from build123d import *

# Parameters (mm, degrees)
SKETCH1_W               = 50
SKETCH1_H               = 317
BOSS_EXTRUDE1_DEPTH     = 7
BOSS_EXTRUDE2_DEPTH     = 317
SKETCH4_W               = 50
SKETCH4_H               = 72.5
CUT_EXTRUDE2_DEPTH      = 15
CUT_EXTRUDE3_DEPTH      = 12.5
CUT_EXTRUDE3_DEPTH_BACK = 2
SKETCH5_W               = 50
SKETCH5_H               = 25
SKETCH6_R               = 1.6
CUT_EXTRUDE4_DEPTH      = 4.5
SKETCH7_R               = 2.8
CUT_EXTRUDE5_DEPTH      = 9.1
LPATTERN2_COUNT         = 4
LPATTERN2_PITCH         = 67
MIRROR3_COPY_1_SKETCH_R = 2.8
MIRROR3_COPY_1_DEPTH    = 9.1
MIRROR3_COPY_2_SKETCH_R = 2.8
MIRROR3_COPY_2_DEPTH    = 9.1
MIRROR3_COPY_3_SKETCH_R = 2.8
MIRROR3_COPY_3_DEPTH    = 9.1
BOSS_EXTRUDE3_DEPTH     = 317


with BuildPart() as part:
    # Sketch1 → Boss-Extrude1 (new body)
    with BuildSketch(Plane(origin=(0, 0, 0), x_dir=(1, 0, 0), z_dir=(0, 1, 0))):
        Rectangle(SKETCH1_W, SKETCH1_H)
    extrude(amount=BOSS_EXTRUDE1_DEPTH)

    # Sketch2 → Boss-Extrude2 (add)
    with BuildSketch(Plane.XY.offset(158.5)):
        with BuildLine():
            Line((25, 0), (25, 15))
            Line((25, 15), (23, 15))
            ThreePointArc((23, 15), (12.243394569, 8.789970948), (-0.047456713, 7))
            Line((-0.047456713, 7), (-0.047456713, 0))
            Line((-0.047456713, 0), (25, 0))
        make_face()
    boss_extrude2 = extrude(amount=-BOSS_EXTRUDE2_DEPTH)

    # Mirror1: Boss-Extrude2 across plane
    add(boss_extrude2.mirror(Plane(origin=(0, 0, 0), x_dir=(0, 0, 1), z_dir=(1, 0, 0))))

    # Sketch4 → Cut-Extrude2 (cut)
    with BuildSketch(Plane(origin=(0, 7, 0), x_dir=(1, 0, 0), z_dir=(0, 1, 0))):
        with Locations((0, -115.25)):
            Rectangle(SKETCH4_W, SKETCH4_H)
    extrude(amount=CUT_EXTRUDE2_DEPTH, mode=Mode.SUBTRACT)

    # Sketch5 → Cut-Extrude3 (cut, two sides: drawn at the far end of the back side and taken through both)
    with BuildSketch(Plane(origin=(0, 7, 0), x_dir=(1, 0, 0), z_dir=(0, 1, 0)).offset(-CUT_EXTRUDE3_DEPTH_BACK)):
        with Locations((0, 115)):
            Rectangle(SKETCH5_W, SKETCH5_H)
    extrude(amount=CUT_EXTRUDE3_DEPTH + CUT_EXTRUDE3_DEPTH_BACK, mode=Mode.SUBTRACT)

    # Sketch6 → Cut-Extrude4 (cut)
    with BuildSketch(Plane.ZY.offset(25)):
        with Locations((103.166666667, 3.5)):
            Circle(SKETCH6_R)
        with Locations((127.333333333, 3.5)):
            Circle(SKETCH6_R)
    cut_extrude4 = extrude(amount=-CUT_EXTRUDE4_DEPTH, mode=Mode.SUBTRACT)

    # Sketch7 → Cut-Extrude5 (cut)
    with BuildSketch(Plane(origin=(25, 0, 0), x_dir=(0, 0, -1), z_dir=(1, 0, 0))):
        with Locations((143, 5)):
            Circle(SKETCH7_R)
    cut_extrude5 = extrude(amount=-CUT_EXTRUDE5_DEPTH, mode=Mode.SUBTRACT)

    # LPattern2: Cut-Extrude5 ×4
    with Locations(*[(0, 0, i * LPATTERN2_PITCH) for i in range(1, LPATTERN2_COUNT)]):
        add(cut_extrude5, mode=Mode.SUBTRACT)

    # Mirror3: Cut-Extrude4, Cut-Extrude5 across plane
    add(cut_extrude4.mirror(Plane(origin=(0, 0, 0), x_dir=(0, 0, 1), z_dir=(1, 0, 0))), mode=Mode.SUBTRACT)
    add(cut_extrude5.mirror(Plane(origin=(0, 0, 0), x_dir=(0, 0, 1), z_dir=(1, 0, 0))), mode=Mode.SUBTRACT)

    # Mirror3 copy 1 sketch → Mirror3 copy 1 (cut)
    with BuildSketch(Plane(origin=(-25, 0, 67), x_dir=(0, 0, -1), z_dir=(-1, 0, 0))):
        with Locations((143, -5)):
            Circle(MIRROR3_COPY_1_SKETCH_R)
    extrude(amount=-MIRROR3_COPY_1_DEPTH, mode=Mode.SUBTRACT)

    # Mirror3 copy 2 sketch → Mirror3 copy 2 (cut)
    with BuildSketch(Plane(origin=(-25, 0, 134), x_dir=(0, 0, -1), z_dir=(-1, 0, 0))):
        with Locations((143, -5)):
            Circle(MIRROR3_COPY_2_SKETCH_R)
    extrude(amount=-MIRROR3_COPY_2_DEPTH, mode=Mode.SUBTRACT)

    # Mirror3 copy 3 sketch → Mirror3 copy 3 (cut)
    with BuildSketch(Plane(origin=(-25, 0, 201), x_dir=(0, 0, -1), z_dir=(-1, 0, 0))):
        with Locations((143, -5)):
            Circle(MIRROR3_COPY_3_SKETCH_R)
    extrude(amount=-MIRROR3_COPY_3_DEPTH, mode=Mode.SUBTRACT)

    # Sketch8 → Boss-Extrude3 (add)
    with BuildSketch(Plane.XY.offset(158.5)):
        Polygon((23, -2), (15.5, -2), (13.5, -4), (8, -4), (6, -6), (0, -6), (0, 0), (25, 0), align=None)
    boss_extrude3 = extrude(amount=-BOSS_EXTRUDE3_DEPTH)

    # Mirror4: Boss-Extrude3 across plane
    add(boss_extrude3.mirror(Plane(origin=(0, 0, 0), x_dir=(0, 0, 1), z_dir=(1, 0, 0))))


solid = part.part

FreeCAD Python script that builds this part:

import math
import FreeCAD as App
import Part
import Sketcher
from FreeCAD import Vector
Q = App.Units.Quantity

doc = App.newDocument("Part")
params = doc.addObject("Spreadsheet::Sheet", "Params")
for row, (alias, value) in enumerate([
    ("sketch1_width", "50 mm"),
    ("sketch1_height", "317 mm"),
    ("pad1_length", "7 mm"),
    ("sketch2_width", "2 mm"),
    ("sketch2_height", "15 mm"),
    ("sketch2_height2", "7 mm"),
    ("pad2_length", "317 mm"),
    ("sketch3_width", "50 mm"),
    ("sketch3_height", "72.5 mm"),
    ("pocket1_length", "15 mm"),
    ("sketch4_width", "50 mm"),
    ("sketch4_height", "25 mm"),
    ("pocket2_length", "12.5 mm"),
    ("pocket2_length2", "2 mm"),
    ("sketch5_diameter", "3.2 mm"),
    ("pocket3_length", "4.5 mm"),
    ("sketch6_diameter", "5.6 mm"),
    ("pocket4_length", "9.1 mm"),
    ("linearpattern_pitch", "67 mm"),
    ("sketch7_diameter", "5.6 mm"),
    ("pocket5_length", "9.1 mm"),
    ("sketch8_diameter", "5.6 mm"),
    ("pocket6_length", "9.1 mm"),
    ("sketch9_diameter", "5.6 mm"),
    ("pocket7_length", "9.1 mm"),
    ("sketch10_width", "25 mm"),
    ("sketch10_width2", "6 mm"),
    ("sketch10_width3", "7.5 mm"),
    ("pad3_length", "317 mm"),
], start=1):
    params.set(f"A{row}", alias)
    params.set(f"B{row}", "=" + value)
    params.setAlias(f"B{row}", alias)

body = doc.addObject("PartDesign::Body", "Body")

sketch1 = doc.addObject("Sketcher::SketchObject", "Sketch")
body.addObject(sketch1)
sketch1.AttachmentSupport = (doc.XZ_Plane, [""])
sketch1.MapMode = "FlatFace"
sketch1.addGeometry([
    Part.LineSegment(Vector(-25, -158, 0), Vector(-25, 158, 0)),
    Part.LineSegment(Vector(-25, 158, 0), Vector(25, 158, 0)),
    Part.LineSegment(Vector(25, 158, 0), Vector(25, -158, 0)),
    Part.LineSegment(Vector(25, -158, 0), Vector(-25, -158, 0)),
], False)
sketch1.addConstraint([
    Sketcher.Constraint("Coincident", 0, 2, 1, 1),
    Sketcher.Constraint("Coincident", 1, 2, 2, 1),
    Sketcher.Constraint("Coincident", 2, 2, 3, 1),
    Sketcher.Constraint("Coincident", 3, 2, 0, 1),
    Sketcher.Constraint("Vertical", 0),
    Sketcher.Constraint("Horizontal", 1),
    Sketcher.Constraint("Vertical", 2),
    Sketcher.Constraint("Horizontal", 3),
    Sketcher.Constraint("Symmetric", 0, 2, 2, 2, -1, 1),
    Sketcher.Constraint("DistanceX", 1, 1, 1, 2, Q("50 mm")),
    Sketcher.Constraint("DistanceY", 0, 1, 0, 2, Q("317 mm")),
])
sketch1.setExpression("Constraints[9]", "Params.sketch1_width")
sketch1.setExpression("Constraints[10]", "Params.sketch1_height")
pad1 = doc.addObject("PartDesign::Pad", "Pad")
body.addObject(pad1)
pad1.Profile = sketch1
pad1.setExpression("Length", "Params.pad1_length")
pad1.Reversed = True

sketch2 = doc.addObject("Sketcher::SketchObject", "Sketch001")
body.addObject(sketch2)
sketch2.AttachmentSupport = (doc.XY_Plane, [""])
sketch2.MapMode = "FlatFace"
sketch2.AttachmentOffset = App.Placement(Vector(0, 0, 158.5), App.Rotation())
sketch2.addGeometry([
    Part.LineSegment(Vector(25, 0, 0), Vector(25, 15, 0)),
    Part.LineSegment(Vector(25, 15, 0), Vector(23, 15, 0)),
    Part.ArcOfCircle(Part.Circle(Vector(1.4, 39.9, 0), Vector(0, 0, 1), 33), math.radians(-93), math.radians(-49)),
    Part.LineSegment(Vector(0, 7, 0), Vector(0, 0, 0)),
    Part.LineSegment(Vector(0, 0, 0), Vector(25, 0, 0)),
], False)
sketch2.addConstraint([
    Sketcher.Constraint("Coincident", 0, 2, 1, 1),
    Sketcher.Constraint("Coincident", 1, 2, 2, 2),
    Sketcher.Constraint("Coincident", 2, 1, 3, 1),
    Sketcher.Constraint("Coincident", 3, 2, 4, 1),
    Sketcher.Constraint("Coincident", 4, 2, 0, 1),
    Sketcher.Constraint("Vertical", 0),
    Sketcher.Constraint("Horizontal", 1),
    Sketcher.Constraint("Vertical", 3),
    Sketcher.Constraint("Horizontal", 4),
    Sketcher.Constraint("PointOnObject", 3, 2, -1),
    Sketcher.Constraint("DistanceX", 1, 2, 1, 1, Q("2 mm")),
    Sketcher.Constraint("DistanceY", 0, 1, 0, 2, Q("15 mm")),
    Sketcher.Constraint("DistanceY", 3, 2, 3, 1, Q("7 mm")),
    Sketcher.Constraint("DistanceX", -1, 1, 0, 2, Q("25 mm")),
    Sketcher.Constraint("Radius", 2, Q("32.972181 mm")),
    Sketcher.Constraint("DistanceX", 4, 1, 4, 2, Q("25.047457 mm")),
])
sketch2.setExpression("Constraints[10]", "Params.sketch2_width")
sketch2.setExpression("Constraints[11]", "Params.sketch2_height")
sketch2.setExpression("Constraints[12]", "Params.sketch2_height2")
pad2 = doc.addObject("PartDesign::Pad", "Pad001")
body.addObject(pad2)
pad2.Profile = sketch2
pad2.setExpression("Length", "Params.pad2_length")
pad2.Reversed = True
doc.recompute()

mirrored = doc.addObject("PartDesign::Mirrored", "Mirrored")
body.addObject(mirrored)
mirrored.Originals = [pad2]
mirrored.MirrorPlane = (doc.YZ_Plane, [""])
body.Tip = mirrored

sketch3 = doc.addObject("Sketcher::SketchObject", "Sketch002")
body.addObject(sketch3)
sketch3.AttachmentSupport = (doc.XZ_Plane, [""])
sketch3.MapMode = "FlatFace"
sketch3.AttachmentOffset = App.Placement(Vector(0, 0, -7), App.Rotation())
sketch3.addGeometry([
    Part.LineSegment(Vector(-25, 79, 0), Vector(-25, 152, 0)),
    Part.LineSegment(Vector(-25, 152, 0), Vector(25, 152, 0)),
    Part.LineSegment(Vector(25, 152, 0), Vector(25, 79, 0)),
    Part.LineSegment(Vector(25, 79, 0), Vector(-25, 79, 0)),
], False)
sketch3.addConstraint([
    Sketcher.Constraint("Coincident", 0, 2, 1, 1),
    Sketcher.Constraint("Coincident", 1, 2, 2, 1),
    Sketcher.Constraint("Coincident", 2, 2, 3, 1),
    Sketcher.Constraint("Coincident", 3, 2, 0, 1),
    Sketcher.Constraint("Vertical", 0),
    Sketcher.Constraint("Horizontal", 1),
    Sketcher.Constraint("Vertical", 2),
    Sketcher.Constraint("Horizontal", 3),
    Sketcher.Constraint("DistanceX", 1, 1, 1, 2, Q("50 mm")),
    Sketcher.Constraint("DistanceY", 0, 1, 0, 2, Q("72.5 mm")),
    Sketcher.Constraint("DistanceX", 0, 2, -1, 1, Q("25 mm")),
    Sketcher.Constraint("DistanceY", -1, 1, 2, 2, Q("79 mm")),
])
sketch3.setExpression("Constraints[8]", "Params.sketch3_width")
sketch3.setExpression("Constraints[9]", "Params.sketch3_height")
pocket1 = doc.addObject("PartDesign::Pocket", "Pocket")
body.addObject(pocket1)
pocket1.Profile = sketch3
pocket1.setExpression("Length", "Params.pocket1_length")

sketch4 = doc.addObject("Sketcher::SketchObject", "Sketch003")
body.addObject(sketch4)
sketch4.AttachmentSupport = (doc.XZ_Plane, [""])
sketch4.MapMode = "FlatFace"
sketch4.AttachmentOffset = App.Placement(Vector(0, 0, -7), App.Rotation())
sketch4.addGeometry([
    Part.LineSegment(Vector(-25, -128, 0), Vector(-25, -102, 0)),
    Part.LineSegment(Vector(-25, -102, 0), Vector(25, -102, 0)),
    Part.LineSegment(Vector(25, -102, 0), Vector(25, -128, 0)),
    Part.LineSegment(Vector(25, -128, 0), Vector(-25, -128, 0)),
], False)
sketch4.addConstraint([
    Sketcher.Constraint("Coincident", 0, 2, 1, 1),
    Sketcher.Constraint("Coincident", 1, 2, 2, 1),
    Sketcher.Constraint("Coincident", 2, 2, 3, 1),
    Sketcher.Constraint("Coincident", 3, 2, 0, 1),
    Sketcher.Constraint("Vertical", 0),
    Sketcher.Constraint("Horizontal", 1),
    Sketcher.Constraint("Vertical", 2),
    Sketcher.Constraint("Horizontal", 3),
    Sketcher.Constraint("DistanceX", 1, 1, 1, 2, Q("50 mm")),
    Sketcher.Constraint("DistanceY", 0, 1, 0, 2, Q("25 mm")),
    Sketcher.Constraint("DistanceX", 0, 2, -1, 1, Q("25 mm")),
    Sketcher.Constraint("DistanceY", 0, 2, -1, 1, Q("102.5 mm")),
])
sketch4.setExpression("Constraints[8]", "Params.sketch4_width")
sketch4.setExpression("Constraints[9]", "Params.sketch4_height")
pocket2 = doc.addObject("PartDesign::Pocket", "Pocket001")
body.addObject(pocket2)
pocket2.Profile = sketch4
pocket2.Type = "TwoLengths"
pocket2.setExpression("Length", "Params.pocket2_length")
pocket2.setExpression("Length2", "Params.pocket2_length2")

sketch5 = doc.addObject("Sketcher::SketchObject", "Sketch004")
body.addObject(sketch5)
sketch5.AttachmentSupport = (doc.YZ_Plane, [""])
sketch5.MapMode = "FlatFace"
sketch5.AttachmentOffset = App.Placement(Vector(0, 0, -25), App.Rotation())
sketch5.addGeometry([
    Part.Circle(Vector(3.5, 103.2, 0), Vector(0, 0, 1), 1.6),
    Part.Circle(Vector(3.5, 127.3, 0), Vector(0, 0, 1), 1.6),
], False)
sketch5.addConstraint([
    Sketcher.Constraint("Equal", 0, 1),
    Sketcher.Constraint("Vertical", 0, 3, 1, 3),
    Sketcher.Constraint("Diameter", 0, Q("3.2 mm")),
    Sketcher.Constraint("DistanceX", -1, 1, 0, 3, Q("3.5 mm")),
    Sketcher.Constraint("DistanceY", -1, 1, 0, 3, Q("103.166667 mm")),
    Sketcher.Constraint("DistanceY", -1, 1, 1, 3, Q("127.333333 mm")),
])
sketch5.setExpression("Constraints[2]", "Params.sketch5_diameter")
pocket3 = doc.addObject("PartDesign::Pocket", "Pocket002")
body.addObject(pocket3)
pocket3.Profile = sketch5
pocket3.setExpression("Length", "Params.pocket3_length")
pocket3.Reversed = True

sketch6 = doc.addObject("Sketcher::SketchObject", "Sketch005")
body.addObject(sketch6)
sketch6.AttachmentSupport = (doc.YZ_Plane, [""])
sketch6.MapMode = "FlatFace"
sketch6.AttachmentOffset = App.Placement(Vector(0, 0, 25), App.Rotation())
sketch6.addGeometry(Part.Circle(Vector(5, -143, 0), Vector(0, 0, 1), 2.8), False)
sketch6.addConstraint([
    Sketcher.Constraint("Diameter", 0, Q("5.6 mm")),
    Sketcher.Constraint("DistanceX", -1, 1, 0, 3, Q("5 mm")),
    Sketcher.Constraint("DistanceY", 0, 3, -1, 1, Q("143 mm")),
])
sketch6.setExpression("Constraints[0]", "Params.sketch6_diameter")
pocket4 = doc.addObject("PartDesign::Pocket", "Pocket003")
body.addObject(pocket4)
pocket4.Profile = sketch6
pocket4.setExpression("Length", "Params.pocket4_length")
doc.recompute()

linearpattern = doc.addObject("PartDesign::LinearPattern", "LinearPattern")
body.addObject(linearpattern)
linearpattern.Originals = [pocket4]
linearpattern.Direction = (doc.Z_Axis, [""])
linearpattern.Mode = "offset"
linearpattern.setExpression("Offset", "Params.linearpattern_pitch")
linearpattern.Occurrences = 4
body.Tip = linearpattern
doc.recompute()

mirrored2 = doc.addObject("PartDesign::Mirrored", "Mirrored001")
body.addObject(mirrored2)
mirrored2.Originals = [pocket3, pocket4]
mirrored2.MirrorPlane = (doc.YZ_Plane, [""])
body.Tip = mirrored2

sketch7 = doc.addObject("Sketcher::SketchObject", "Sketch006")
body.addObject(sketch7)
sketch7.AttachmentSupport = (doc.YZ_Plane, [""])
sketch7.MapMode = "FlatFace"
sketch7.AttachmentOffset = App.Placement(Vector(0, 0, -25), App.Rotation())
sketch7.addGeometry(Part.Circle(Vector(5, -76, 0), Vector(0, 0, 1), 2.8), False)
sketch7.addConstraint([
    Sketcher.Constraint("Diameter", 0, Q("5.6 mm")),
    Sketcher.Constraint("DistanceX", -1, 1, 0, 3, Q("5 mm")),
    Sketcher.Constraint("DistanceY", 0, 3, -1, 1, Q("76 mm")),
])
sketch7.setExpression("Constraints[0]", "Params.sketch7_diameter")
pocket5 = doc.addObject("PartDesign::Pocket", "Pocket004")
body.addObject(pocket5)
pocket5.Profile = sketch7
pocket5.setExpression("Length", "Params.pocket5_length")
pocket5.Reversed = True

sketch8 = doc.addObject("Sketcher::SketchObject", "Sketch007")
body.addObject(sketch8)
sketch8.AttachmentSupport = (doc.YZ_Plane, [""])
sketch8.MapMode = "FlatFace"
sketch8.AttachmentOffset = App.Placement(Vector(0, 0, -25), App.Rotation())
sketch8.addGeometry(Part.Circle(Vector(5, -9, 0), Vector(0, 0, 1), 2.8), False)
sketch8.addConstraint([
    Sketcher.Constraint("Diameter", 0, Q("5.6 mm")),
    Sketcher.Constraint("DistanceX", -1, 1, 0, 3, Q("5 mm")),
    Sketcher.Constraint("DistanceY", 0, 3, -1, 1, Q("9 mm")),
])
sketch8.setExpression("Constraints[0]", "Params.sketch8_diameter")
pocket6 = doc.addObject("PartDesign::Pocket", "Pocket005")
body.addObject(pocket6)
pocket6.Profile = sketch8
pocket6.setExpression("Length", "Params.pocket6_length")
pocket6.Reversed = True

sketch9 = doc.addObject("Sketcher::SketchObject", "Sketch008")
body.addObject(sketch9)
sketch9.AttachmentSupport = (doc.YZ_Plane, [""])
sketch9.MapMode = "FlatFace"
sketch9.AttachmentOffset = App.Placement(Vector(0, 0, -25), App.Rotation())
sketch9.addGeometry(Part.Circle(Vector(5, 58, 0), Vector(0, 0, 1), 2.8), False)
sketch9.addConstraint([
    Sketcher.Constraint("Diameter", 0, Q("5.6 mm")),
    Sketcher.Constraint("DistanceX", -1, 1, 0, 3, Q("5 mm")),
    Sketcher.Constraint("DistanceY", -1, 1, 0, 3, Q("58 mm")),
])
sketch9.setExpression("Constraints[0]", "Params.sketch9_diameter")
pocket7 = doc.addObject("PartDesign::Pocket", "Pocket006")
body.addObject(pocket7)
pocket7.Profile = sketch9
pocket7.setExpression("Length", "Params.pocket7_length")
pocket7.Reversed = True

sketch10 = doc.addObject("Sketcher::SketchObject", "Sketch009")
body.addObject(sketch10)
sketch10.AttachmentSupport = (doc.XY_Plane, [""])
sketch10.MapMode = "FlatFace"
sketch10.AttachmentOffset = App.Placement(Vector(0, 0, 158.5), App.Rotation())
sketch10.addGeometry([
    Part.LineSegment(Vector(15.5, -2, 0), Vector(23, -2, 0)),
    Part.LineSegment(Vector(23, -2, 0), Vector(25, 0, 0)),
    Part.LineSegment(Vector(25, 0, 0), Vector(0, 0, 0)),
    Part.LineSegment(Vector(0, 0, 0), Vector(0, -6, 0)),
    Part.LineSegment(Vector(0, -6, 0), Vector(6, -6, 0)),
    Part.LineSegment(Vector(6, -6, 0), Vector(8, -4, 0)),
    Part.LineSegment(Vector(8, -4, 0), Vector(13.5, -4, 0)),
    Part.LineSegment(Vector(13.5, -4, 0), Vector(15.5, -2, 0)),
], False)
sketch10.addConstraint([
    Sketcher.Constraint("Coincident", 0, 2, 1, 1),
    Sketcher.Constraint("Coincident", 1, 2, 2, 1),
    Sketcher.Constraint("Coincident", 2, 2, 3, 1),
    Sketcher.Constraint("Coincident", 3, 2, 4, 1),
    Sketcher.Constraint("Coincident", 4, 2, 5, 1),
    Sketcher.Constraint("Coincident", 5, 2, 6, 1),
    Sketcher.Constraint("Coincident", 6, 2, 7, 1),
    Sketcher.Constraint("Coincident", 7, 2, 0, 1),
    Sketcher.Constraint("Horizontal", 0),
    Sketcher.Constraint("Horizontal", 2),
    Sketcher.Constraint("Vertical", 3),
    Sketcher.Constraint("Horizontal", 4),
    Sketcher.Constraint("Horizontal", 6),
    Sketcher.Constraint("Coincident", 2, 2, -1, 1),
    Sketcher.Constraint("Parallel", 1, 5),
    Sketcher.Constraint("Parallel", 5, 7),
    Sketcher.Constraint("Equal", 4, 3),
    Sketcher.Constraint("Equal", 1, 5),
    Sketcher.Constraint("Equal", 5, 7),
    Sketcher.Constraint("DistanceX", 2, 2, 2, 1, Q("25 mm")),
    Sketcher.Constraint("DistanceX", 4, 1, 4, 2, Q("6 mm")),
    Sketcher.Constraint("Angle", 1, Q("45 deg")),
    Sketcher.Constraint("DistanceX", 0, 1, 0, 2, Q("7.5 mm")),
])
sketch10.setExpression("Constraints[19]", "Params.sketch10_width")
sketch10.setExpression("Constraints[20]", "Params.sketch10_width2")
sketch10.setExpression("Constraints[22]", "Params.sketch10_width3")
pad3 = doc.addObject("PartDesign::Pad", "Pad002")
body.addObject(pad3)
pad3.Profile = sketch10
pad3.setExpression("Length", "Params.pad3_length")
pad3.Reversed = True
doc.recompute()

mirrored3 = doc.addObject("PartDesign::Mirrored", "Mirrored002")
body.addObject(mirrored3)
mirrored3.Originals = [pad3]
mirrored3.MirrorPlane = (doc.YZ_Plane, [""])
body.Tip = mirrored3

doc.recompute()
